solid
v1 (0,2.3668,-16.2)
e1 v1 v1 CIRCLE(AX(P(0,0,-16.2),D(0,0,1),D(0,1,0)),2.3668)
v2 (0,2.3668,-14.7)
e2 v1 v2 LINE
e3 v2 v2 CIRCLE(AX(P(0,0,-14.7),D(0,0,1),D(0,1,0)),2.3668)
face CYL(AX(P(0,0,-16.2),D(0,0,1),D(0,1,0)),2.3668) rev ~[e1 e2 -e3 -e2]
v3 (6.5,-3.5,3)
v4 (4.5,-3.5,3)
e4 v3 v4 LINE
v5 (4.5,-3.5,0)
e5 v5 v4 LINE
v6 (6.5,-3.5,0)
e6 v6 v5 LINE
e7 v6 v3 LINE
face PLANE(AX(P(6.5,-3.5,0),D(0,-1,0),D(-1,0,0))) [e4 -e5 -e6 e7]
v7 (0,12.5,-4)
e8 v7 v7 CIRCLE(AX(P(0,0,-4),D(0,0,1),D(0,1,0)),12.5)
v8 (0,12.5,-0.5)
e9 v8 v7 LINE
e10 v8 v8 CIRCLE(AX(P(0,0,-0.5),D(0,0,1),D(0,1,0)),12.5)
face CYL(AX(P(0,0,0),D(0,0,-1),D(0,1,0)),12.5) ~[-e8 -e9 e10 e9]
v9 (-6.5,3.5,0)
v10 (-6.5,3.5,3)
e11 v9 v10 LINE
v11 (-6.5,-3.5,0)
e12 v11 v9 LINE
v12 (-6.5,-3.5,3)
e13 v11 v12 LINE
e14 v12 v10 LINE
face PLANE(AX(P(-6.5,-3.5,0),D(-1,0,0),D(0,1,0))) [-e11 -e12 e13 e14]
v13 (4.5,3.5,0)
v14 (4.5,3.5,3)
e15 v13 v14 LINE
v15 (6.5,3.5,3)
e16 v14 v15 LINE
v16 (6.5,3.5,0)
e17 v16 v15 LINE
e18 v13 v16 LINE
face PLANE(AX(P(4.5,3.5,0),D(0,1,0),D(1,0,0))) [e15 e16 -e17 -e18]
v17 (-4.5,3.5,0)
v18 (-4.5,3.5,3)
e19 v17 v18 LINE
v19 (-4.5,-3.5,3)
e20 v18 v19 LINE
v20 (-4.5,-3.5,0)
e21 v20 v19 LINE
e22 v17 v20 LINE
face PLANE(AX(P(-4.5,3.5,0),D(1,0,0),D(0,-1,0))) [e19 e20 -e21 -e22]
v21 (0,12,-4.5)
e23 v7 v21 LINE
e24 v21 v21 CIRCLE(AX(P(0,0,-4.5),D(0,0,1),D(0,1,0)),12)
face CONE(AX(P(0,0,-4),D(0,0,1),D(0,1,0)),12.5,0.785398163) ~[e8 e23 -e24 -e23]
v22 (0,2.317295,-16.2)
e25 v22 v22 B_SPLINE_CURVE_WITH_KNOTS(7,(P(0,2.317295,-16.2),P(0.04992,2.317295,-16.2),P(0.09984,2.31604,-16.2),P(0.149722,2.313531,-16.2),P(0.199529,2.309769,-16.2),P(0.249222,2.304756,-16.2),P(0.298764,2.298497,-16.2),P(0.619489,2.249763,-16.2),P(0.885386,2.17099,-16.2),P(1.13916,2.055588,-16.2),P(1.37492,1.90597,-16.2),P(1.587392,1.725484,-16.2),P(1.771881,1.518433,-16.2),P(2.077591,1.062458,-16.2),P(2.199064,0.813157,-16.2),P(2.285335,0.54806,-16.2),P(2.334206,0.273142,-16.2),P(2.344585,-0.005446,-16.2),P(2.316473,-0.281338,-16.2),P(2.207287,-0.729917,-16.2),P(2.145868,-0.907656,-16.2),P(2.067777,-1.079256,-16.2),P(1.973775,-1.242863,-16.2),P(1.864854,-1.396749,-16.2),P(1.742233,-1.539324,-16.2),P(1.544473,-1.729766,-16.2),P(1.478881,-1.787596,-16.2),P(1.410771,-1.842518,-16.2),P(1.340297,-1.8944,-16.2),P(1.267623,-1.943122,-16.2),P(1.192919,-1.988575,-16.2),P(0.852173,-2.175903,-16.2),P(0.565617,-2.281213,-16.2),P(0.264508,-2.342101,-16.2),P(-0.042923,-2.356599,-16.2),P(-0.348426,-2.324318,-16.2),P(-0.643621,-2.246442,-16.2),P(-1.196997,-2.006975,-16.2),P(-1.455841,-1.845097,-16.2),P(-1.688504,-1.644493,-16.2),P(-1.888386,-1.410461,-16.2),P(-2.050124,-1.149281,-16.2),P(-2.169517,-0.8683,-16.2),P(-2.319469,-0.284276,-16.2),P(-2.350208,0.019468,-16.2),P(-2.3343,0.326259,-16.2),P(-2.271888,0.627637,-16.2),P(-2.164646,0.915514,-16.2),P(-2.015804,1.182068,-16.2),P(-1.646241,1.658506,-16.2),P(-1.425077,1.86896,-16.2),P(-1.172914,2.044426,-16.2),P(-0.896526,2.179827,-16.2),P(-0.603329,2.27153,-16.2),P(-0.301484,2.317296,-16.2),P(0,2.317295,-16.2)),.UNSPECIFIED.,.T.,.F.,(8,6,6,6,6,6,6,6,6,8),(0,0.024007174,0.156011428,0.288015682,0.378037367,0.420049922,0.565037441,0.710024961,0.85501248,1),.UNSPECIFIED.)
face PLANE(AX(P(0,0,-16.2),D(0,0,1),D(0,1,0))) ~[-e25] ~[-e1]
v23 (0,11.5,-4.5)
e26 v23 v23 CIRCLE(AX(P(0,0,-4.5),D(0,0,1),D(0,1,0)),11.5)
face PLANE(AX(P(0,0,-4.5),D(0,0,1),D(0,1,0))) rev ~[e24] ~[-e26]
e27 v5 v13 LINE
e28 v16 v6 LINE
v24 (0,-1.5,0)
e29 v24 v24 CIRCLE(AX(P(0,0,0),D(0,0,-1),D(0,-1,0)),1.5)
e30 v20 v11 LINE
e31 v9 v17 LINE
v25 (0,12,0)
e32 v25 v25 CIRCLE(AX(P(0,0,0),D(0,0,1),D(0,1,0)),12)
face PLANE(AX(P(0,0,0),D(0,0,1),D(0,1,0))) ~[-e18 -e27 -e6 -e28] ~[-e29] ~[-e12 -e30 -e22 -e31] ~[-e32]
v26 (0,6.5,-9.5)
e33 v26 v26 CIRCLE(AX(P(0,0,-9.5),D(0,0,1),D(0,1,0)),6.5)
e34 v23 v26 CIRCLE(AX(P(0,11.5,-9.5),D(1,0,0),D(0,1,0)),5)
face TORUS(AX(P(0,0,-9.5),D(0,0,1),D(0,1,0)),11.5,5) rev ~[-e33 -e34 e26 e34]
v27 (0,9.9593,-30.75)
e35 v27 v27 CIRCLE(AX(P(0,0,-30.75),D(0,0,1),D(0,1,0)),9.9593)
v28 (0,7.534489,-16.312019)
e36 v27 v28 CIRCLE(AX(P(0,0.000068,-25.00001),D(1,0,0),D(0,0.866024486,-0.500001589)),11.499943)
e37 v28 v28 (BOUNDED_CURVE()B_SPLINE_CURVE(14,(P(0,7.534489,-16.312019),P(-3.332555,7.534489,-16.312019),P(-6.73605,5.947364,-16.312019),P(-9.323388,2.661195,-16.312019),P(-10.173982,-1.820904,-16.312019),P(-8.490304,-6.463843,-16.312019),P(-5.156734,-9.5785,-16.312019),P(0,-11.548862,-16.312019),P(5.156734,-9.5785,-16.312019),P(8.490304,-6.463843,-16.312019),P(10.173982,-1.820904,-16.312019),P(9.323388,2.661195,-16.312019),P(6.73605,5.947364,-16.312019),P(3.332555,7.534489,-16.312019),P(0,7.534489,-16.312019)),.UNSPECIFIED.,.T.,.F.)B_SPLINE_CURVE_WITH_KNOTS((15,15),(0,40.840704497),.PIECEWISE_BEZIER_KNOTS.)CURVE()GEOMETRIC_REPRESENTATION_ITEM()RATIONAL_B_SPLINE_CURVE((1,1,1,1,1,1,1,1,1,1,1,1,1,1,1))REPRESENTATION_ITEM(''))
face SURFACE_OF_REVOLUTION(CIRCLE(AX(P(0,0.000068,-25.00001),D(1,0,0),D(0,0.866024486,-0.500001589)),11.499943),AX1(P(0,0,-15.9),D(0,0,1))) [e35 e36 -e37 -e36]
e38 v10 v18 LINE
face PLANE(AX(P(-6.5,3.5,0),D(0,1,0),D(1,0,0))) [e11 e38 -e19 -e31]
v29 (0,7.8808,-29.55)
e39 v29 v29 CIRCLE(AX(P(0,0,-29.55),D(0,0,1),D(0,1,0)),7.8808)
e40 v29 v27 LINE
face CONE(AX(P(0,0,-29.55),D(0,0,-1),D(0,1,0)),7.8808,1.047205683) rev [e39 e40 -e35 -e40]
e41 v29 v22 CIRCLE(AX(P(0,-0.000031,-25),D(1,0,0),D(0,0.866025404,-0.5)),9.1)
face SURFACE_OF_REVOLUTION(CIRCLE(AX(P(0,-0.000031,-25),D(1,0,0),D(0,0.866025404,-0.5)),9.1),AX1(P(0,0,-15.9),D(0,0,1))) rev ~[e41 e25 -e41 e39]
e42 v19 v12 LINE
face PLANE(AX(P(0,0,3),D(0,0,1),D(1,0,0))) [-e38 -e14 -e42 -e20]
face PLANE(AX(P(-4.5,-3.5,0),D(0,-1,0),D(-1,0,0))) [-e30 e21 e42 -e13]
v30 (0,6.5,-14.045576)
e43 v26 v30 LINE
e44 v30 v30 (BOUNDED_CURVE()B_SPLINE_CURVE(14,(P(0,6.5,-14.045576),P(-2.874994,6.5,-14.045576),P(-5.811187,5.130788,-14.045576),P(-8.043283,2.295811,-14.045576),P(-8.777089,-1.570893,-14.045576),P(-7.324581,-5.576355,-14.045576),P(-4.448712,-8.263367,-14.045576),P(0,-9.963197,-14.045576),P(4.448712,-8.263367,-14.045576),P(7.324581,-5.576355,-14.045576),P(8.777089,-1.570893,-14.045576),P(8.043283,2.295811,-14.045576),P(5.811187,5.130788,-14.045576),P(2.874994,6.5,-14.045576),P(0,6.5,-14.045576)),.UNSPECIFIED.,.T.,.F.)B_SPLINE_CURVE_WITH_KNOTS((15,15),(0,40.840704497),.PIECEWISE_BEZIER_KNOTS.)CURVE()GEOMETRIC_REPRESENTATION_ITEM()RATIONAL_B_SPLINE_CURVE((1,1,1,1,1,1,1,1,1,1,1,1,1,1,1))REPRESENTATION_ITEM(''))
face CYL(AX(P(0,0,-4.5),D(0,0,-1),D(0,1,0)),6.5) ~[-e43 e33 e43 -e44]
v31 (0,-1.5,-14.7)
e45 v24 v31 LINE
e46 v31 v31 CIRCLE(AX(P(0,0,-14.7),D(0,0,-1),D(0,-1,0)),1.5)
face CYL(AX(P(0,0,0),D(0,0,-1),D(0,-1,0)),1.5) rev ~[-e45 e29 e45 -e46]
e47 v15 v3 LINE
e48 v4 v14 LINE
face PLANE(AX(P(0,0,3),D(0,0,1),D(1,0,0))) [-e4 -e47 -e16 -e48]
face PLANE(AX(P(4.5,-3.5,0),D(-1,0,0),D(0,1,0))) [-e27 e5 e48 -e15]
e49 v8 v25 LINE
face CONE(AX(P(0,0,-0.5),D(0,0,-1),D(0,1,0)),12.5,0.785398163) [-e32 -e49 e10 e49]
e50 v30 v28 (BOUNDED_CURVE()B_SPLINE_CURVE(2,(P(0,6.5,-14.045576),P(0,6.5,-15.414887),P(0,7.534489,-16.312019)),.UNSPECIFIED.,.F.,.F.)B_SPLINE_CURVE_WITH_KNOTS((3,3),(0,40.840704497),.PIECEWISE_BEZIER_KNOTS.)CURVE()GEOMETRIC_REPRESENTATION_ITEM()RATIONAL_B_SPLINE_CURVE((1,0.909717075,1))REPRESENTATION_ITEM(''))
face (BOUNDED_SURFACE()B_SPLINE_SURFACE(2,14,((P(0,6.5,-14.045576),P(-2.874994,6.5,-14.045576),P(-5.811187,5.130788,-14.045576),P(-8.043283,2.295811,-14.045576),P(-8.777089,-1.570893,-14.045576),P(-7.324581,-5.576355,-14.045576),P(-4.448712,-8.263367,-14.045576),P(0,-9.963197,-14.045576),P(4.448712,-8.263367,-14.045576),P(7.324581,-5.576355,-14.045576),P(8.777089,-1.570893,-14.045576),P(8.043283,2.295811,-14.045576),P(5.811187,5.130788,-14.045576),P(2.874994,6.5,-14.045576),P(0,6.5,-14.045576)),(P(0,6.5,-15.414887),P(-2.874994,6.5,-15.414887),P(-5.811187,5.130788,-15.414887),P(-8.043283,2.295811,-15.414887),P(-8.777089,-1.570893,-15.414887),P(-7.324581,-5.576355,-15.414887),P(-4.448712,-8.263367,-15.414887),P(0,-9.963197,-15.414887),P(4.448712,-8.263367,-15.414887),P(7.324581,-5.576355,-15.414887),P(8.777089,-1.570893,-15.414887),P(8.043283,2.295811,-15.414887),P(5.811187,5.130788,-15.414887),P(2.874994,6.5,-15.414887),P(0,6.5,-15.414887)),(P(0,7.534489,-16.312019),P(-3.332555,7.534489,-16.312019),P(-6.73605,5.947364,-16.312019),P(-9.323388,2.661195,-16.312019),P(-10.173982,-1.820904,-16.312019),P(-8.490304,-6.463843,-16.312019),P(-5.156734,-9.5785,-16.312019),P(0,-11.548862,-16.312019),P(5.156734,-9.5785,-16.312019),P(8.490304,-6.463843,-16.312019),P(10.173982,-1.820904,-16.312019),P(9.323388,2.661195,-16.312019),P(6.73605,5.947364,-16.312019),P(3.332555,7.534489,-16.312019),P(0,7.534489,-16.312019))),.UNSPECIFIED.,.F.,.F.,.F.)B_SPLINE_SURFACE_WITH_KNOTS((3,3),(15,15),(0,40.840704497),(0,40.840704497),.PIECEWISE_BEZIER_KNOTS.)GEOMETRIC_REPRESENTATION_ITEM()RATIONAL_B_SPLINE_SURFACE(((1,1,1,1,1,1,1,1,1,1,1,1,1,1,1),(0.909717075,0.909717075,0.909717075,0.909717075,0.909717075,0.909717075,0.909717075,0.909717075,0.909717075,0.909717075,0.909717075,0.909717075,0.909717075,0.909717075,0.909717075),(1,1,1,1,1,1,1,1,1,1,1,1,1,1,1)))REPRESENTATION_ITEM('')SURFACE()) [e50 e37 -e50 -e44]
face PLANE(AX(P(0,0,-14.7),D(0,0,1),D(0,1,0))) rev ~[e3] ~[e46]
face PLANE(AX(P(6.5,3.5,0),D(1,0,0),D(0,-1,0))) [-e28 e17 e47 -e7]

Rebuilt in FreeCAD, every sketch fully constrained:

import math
import FreeCAD as App
import Part
import Sketcher

V = App.Vector
Q = App.Units.Quantity


def edges_at(feature, points):
    """Names of the edges that pass closest to the given points."""
    edges = feature.Shape.Edges
    near = lambda p: min(range(len(edges)), key=lambda i: edges[i].distToShape(Part.Vertex(*p))[0])
    return sorted({f"Edge{near(p) + 1}" for p in points})

doc = App.newDocument("Part")
body = doc.addObject("PartDesign::Body", "Body")

# Sketch on YZ plane
sketch1 = body.newObject("Sketcher::SketchObject", "Sketch")
sketch1.AttachmentSupport = (doc.getObject("YZ_Plane"), [""])
sketch1.MapMode = "FlatFace"
sketch1.addGeometry(Part.ArcOfCircle(Part.Circle(V(0, -25, 0), V(0, 0, 1), 9.1), math.radians(-30), math.radians(90)), False)
sketch1.addGeometry(Part.LineSegment(V(7.9, -29.6, 0), V(10, -30.8, 0)), False)
sketch1.addGeometry(Part.ArcOfCircle(Part.Circle(V(0, -25, 0), V(0, 0, 1), 11.5), math.radians(-30), math.radians(56)), False)
sketch1.addGeometry(Part.LineSegment(V(6.5, -15.5, 0), V(6.5, -4.5, 0)), False)
sketch1.addGeometry(Part.LineSegment(V(6.5, -4.5, 0), V(12.5, -4.5, 0)), False)
sketch1.addGeometry(Part.LineSegment(V(12.5, -4.5, 0), V(12.5, 0, 0)), False)
sketch1.addGeometry(Part.LineSegment(V(12.5, 0, 0), V(0, 0, 0)), False)
sketch1.addGeometry(Part.LineSegment(V(0, 0, 0), V(0, -15.9, 0)), False)
sketch1.addConstraint(Sketcher.Constraint("Coincident", 0, 1, 1, 1))
sketch1.addConstraint(Sketcher.Constraint("Coincident", 1, 2, 2, 1))
sketch1.addConstraint(Sketcher.Constraint("Coincident", 2, 2, 3, 1))
sketch1.addConstraint(Sketcher.Constraint("Coincident", 3, 2, 4, 1))
sketch1.addConstraint(Sketcher.Constraint("Coincident", 4, 2, 5, 1))
sketch1.addConstraint(Sketcher.Constraint("Coincident", 5, 2, 6, 1))
sketch1.addConstraint(Sketcher.Constraint("Coincident", 6, 2, 7, 1))
sketch1.addConstraint(Sketcher.Constraint("Coincident", 7, 2, 0, 2))
sketch1.addConstraint(Sketcher.Constraint("Vertical", 3))
sketch1.addConstraint(Sketcher.Constraint("Horizontal", 4))
sketch1.addConstraint(Sketcher.Constraint("Vertical", 5))
sketch1.addConstraint(Sketcher.Constraint("Horizontal", 6))
sketch1.addConstraint(Sketcher.Constraint("Vertical", 7))
sketch1.addConstraint(Sketcher.Constraint("Coincident", 6, 2, -1, 1))
sketch1.addConstraint(Sketcher.Constraint("Coincident", 2, 3, 0, 3))
sketch1.addConstraint(Sketcher.Constraint("PointOnObject", 0, 3, -2))
sketch1.addConstraint(Sketcher.Constraint("Radius", 0, 9.1))
sketch1.addConstraint(Sketcher.Constraint("Radius", 2, 11.5))
sketch1.addConstraint(Sketcher.Constraint("DistanceX", 6, 2, 6, 1, 12.5))
sketch1.addConstraint(Sketcher.Constraint("DistanceY", 5, 1, 5, 2, 4.5))
sketch1.addConstraint(Sketcher.Constraint("DistanceY", 0, 3, -1, 1, 25.0))
sketch1.addConstraint(Sketcher.Constraint("DistanceX", -1, 1, 2, 2, 6.5))
sketch1.addConstraint(Sketcher.Constraint("Angle", 1, Q("-29.9995 deg")))
sketch1.addConstraint(Sketcher.Constraint("DistanceY", 0, 1, -1, 1, 29.55))
revolution = body.newObject("PartDesign::Revolution", "Revolution")
revolution.Profile = sketch1
revolution.ReferenceAxis = (sketch1, ["V_Axis"])
revolution.Angle = 360

# Sketch on XY plane
sketch2 = body.newObject("Sketcher::SketchObject", "Sketch001")
sketch2.AttachmentSupport = (doc.getObject("XY_Plane"), [""])
sketch2.MapMode = "FlatFace"
sketch2.addGeometry(Part.Circle(V(0, 0, 0), V(0, 0, 1), 1.5), False)
sketch2.addConstraint(Sketcher.Constraint("Coincident", 0, 3, -1, 1))
sketch2.addConstraint(Sketcher.Constraint("Diameter", 0, 3.0))
doc.recompute()
hole = body.newObject("PartDesign::Hole", "Hole")
hole.Profile = sketch2
hole.ThreadType = "None"
hole.Diameter = 3
hole.DepthType = "ThroughAll"

# Sketch on XY plane
sketch3 = body.newObject("Sketcher::SketchObject", "Sketch002")
sketch3.AttachmentSupport = (doc.getObject("XY_Plane"), [""])
sketch3.MapMode = "FlatFace"
sketch3.AttachmentOffset = App.Placement(V(0, 0, -16.2), App.Rotation())
sketch3.addGeometry(Part.Circle(V(0, 0, 0), V(0, 0, 1), 2.4), False)
sketch3.addConstraint(Sketcher.Constraint("Coincident", 0, 3, -1, 1))
sketch3.addConstraint(Sketcher.Constraint("Diameter", 0, 4.7336))
doc.recompute()
hole2 = body.newObject("PartDesign::Hole", "Hole001")
hole2.Profile = sketch3
hole2.ThreadType = "None"
hole2.Diameter = 4.7336
hole2.DepthType = "Dimension"
hole2.Depth = 1.5
hole2.DrillPoint = "Flat"
hole2.Reversed = True
doc.recompute()

chamfer = body.newObject("PartDesign::Chamfer", "Chamfer")
chamfer.Base = (hole2, edges_at(hole2, [(0, -12.5, 0)]))
chamfer.Size = 0.5
doc.recompute()

chamfer2 = body.newObject("PartDesign::Chamfer", "Chamfer001")
chamfer2.Base = (chamfer, edges_at(chamfer, [(0, -12.5, -4.5)]))
chamfer2.Size = 0.5
doc.recompute()

fillet = body.newObject("PartDesign::Fillet", "Fillet")
fillet.Base = (chamfer2, edges_at(chamfer2, [(0, -6.5, -4.5)]))
fillet.Radius = 5
doc.recompute()

fillet2 = body.newObject("PartDesign::Fillet", "Fillet001")
fillet2.Base = (fillet, edges_at(fillet, [(0, -6.5, -15.513)]))
fillet2.Radius = 3

# Sketch on XY plane
sketch4 = body.newObject("Sketcher::SketchObject", "Sketch003")
sketch4.AttachmentSupport = (doc.getObject("XY_Plane"), [""])
sketch4.MapMode = "FlatFace"
sketch4.addGeometry(Part.LineSegment(V(4.5, 3.5, 0), V(4.5, -3.5, 0)), False)
sketch4.addGeometry(Part.LineSegment(V(4.5, -3.5, 0), V(6.5, -3.5, 0)), False)
sketch4.addGeometry(Part.LineSegment(V(6.5, -3.5, 0), V(6.5, 3.5, 0)), False)
sketch4.addGeometry(Part.LineSegment(V(6.5, 3.5, 0), V(4.5, 3.5, 0)), False)
sketch4.addGeometry(Part.LineSegment(V(-6.5, -3.5, 0), V(-4.5, -3.5, 0)), False)
sketch4.addGeometry(Part.LineSegment(V(-4.5, -3.5, 0), V(-4.5, 3.5, 0)), False)
sketch4.addGeometry(Part.LineSegment(V(-4.5, 3.5, 0), V(-6.5, 3.5, 0)), False)
sketch4.addGeometry(Part.LineSegment(V(-6.5, 3.5, 0), V(-6.5, -3.5, 0)), False)
sketch4.addConstraint(Sketcher.Constraint("Coincident", 0, 2, 1, 1))
sketch4.addConstraint(Sketcher.Constraint("Coincident", 1, 2, 2, 1))
sketch4.addConstraint(Sketcher.Constraint("Coincident", 2, 2, 3, 1))
sketch4.addConstraint(Sketcher.Constraint("Coincident", 3, 2, 0, 1))
sketch4.addConstraint(Sketcher.Constraint("Coincident", 4, 2, 5, 1))
sketch4.addConstraint(Sketcher.Constraint("Coincident", 5, 2, 6, 1))
sketch4.addConstraint(Sketcher.Constraint("Coincident", 6, 2, 7, 1))
sketch4.addConstraint(Sketcher.Constraint("Coincident", 7, 2, 4, 1))
sketch4.addConstraint(Sketcher.Constraint("Vertical", 0))
sketch4.addConstraint(Sketcher.Constraint("Horizontal", 1))
sketch4.addConstraint(Sketcher.Constraint("Vertical", 2))
sketch4.addConstraint(Sketcher.Constraint("Horizontal", 3))
sketch4.addConstraint(Sketcher.Constraint("Horizontal", 4))
sketch4.addConstraint(Sketcher.Constraint("Vertical", 5))
sketch4.addConstraint(Sketcher.Constraint("Horizontal", 6))
sketch4.addConstraint(Sketcher.Constraint("Vertical", 7))
sketch4.addConstraint(Sketcher.Constraint("Symmetric", 3, 2, 4, 2, -1, 1))
sketch4.addConstraint(Sketcher.Constraint("Symmetric", 1, 2, 6, 2, -1, 1))
sketch4.addConstraint(Sketcher.Constraint("Horizontal", 1, 2, 4, 2))
sketch4.addConstraint(Sketcher.Constraint("DistanceX", 1, 1, 1, 2, 2.0))
sketch4.addConstraint(Sketcher.Constraint("DistanceY", 0, 2, 0, 1, 7.0))
sketch4.addConstraint(Sketcher.Constraint("DistanceX", -1, 1, 0, 2, 4.5))
pad1 = body.newObject("PartDesign::Pad", "Pad")
pad1.Profile = sketch4
pad1.Length = 3

doc.recompute()
